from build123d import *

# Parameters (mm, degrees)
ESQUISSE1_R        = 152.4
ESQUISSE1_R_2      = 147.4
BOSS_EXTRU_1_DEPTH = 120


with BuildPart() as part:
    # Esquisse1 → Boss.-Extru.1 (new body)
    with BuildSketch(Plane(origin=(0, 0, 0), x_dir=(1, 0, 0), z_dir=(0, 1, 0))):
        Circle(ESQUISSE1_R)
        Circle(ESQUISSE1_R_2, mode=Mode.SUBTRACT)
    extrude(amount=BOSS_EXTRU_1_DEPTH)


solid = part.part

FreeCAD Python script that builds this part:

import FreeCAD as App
import Part
import Sketcher

doc = App.newDocument("Part")
body = doc.addObject("PartDesign::Body", "Body")

# Sketch on XZ plane
sketch1 = body.newObject("Sketcher::SketchObject", "Sketch")
sketch1.AttachmentSupport = (doc.getObject("XZ_Plane"), [""])
sketch1.MapMode = "FlatFace"
sketch1.addGeometry([
    Part.Circle(App.Vector(0, 0, 0), App.Vector(0, 0, 1), 152.4),
    Part.Circle(App.Vector(0, 0, 0), App.Vector(0, 0, 1), 147.4),
], False)
sketch1.addConstraint([
    Sketcher.Constraint("Coincident", 0, 3, -1, 1),
    Sketcher.Constraint("Coincident", 1, 3, -1, 1),
    Sketcher.Constraint("Diameter", 0, 304.8),
    Sketcher.Constraint("Diameter", 1, 294.8),
])
pad1 = body.newObject("PartDesign::Pad", "Pad")
pad1.Profile = sketch1
pad1.Length = 120
pad1.Reversed = True

doc.recompute()
